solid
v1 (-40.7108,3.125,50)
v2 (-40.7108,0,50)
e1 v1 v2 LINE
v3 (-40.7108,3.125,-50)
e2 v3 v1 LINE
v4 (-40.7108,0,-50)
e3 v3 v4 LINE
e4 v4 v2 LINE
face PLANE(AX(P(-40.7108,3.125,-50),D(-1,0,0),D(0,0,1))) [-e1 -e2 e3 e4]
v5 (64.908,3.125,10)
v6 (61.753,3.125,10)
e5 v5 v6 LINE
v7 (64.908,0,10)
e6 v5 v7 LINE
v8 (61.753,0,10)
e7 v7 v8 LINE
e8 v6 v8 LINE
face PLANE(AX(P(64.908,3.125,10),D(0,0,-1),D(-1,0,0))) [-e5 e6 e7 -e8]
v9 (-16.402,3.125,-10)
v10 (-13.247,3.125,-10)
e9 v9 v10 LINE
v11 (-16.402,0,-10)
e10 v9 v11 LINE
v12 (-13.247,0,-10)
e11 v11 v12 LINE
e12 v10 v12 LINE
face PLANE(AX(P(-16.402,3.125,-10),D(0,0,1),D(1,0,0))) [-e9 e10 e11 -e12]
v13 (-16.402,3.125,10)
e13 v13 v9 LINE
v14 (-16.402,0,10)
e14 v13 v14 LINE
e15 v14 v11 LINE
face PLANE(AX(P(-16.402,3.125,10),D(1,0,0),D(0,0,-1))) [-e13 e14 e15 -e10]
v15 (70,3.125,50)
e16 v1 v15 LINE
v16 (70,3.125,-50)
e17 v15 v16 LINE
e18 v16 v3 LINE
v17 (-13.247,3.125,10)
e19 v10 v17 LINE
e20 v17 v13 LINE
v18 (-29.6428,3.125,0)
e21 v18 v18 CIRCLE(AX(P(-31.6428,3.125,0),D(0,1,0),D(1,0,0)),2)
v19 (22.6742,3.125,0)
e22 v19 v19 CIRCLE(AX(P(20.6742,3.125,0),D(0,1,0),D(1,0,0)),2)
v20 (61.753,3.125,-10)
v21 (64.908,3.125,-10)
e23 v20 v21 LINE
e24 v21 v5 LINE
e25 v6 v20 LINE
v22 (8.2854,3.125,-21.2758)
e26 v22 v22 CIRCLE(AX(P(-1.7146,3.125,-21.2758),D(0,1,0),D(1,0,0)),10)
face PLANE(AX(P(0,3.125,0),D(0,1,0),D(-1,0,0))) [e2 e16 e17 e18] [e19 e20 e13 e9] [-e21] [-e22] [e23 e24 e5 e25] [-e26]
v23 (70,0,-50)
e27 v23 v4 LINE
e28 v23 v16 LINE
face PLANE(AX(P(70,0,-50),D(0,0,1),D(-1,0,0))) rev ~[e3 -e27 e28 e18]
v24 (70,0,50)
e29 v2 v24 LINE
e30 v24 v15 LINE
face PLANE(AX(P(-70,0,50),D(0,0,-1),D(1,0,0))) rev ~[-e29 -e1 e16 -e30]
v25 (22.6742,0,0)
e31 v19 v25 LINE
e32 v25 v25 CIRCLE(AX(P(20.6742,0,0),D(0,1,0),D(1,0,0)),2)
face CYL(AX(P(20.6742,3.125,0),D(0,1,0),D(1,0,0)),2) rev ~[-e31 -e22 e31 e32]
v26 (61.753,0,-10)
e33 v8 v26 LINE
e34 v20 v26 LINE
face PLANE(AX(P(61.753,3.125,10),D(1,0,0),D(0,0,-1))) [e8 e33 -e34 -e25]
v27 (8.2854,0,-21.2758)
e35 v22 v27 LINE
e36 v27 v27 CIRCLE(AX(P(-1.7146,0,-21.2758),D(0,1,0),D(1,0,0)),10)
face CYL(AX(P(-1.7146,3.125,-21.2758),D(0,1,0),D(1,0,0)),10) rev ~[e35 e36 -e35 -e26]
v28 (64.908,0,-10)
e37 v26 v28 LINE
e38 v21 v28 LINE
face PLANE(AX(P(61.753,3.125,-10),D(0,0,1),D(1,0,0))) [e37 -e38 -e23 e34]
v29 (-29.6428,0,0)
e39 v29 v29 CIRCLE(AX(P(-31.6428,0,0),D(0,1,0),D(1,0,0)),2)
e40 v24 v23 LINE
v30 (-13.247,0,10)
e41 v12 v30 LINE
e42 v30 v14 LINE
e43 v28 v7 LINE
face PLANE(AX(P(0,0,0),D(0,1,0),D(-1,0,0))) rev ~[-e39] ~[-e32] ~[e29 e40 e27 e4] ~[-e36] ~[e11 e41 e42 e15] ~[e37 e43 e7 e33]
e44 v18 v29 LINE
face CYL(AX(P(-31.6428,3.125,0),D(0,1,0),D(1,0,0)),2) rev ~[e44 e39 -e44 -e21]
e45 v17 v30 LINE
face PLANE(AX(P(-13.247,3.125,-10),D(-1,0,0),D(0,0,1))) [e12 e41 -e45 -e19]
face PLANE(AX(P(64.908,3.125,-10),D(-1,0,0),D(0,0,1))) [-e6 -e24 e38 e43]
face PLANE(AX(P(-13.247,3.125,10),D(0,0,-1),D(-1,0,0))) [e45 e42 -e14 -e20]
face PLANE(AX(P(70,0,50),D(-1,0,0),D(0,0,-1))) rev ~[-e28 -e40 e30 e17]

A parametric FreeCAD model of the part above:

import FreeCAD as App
import Part
import Sketcher

V = App.Vector

doc = App.newDocument("Part")
body = doc.addObject("PartDesign::Body", "Body")

sketch1 = doc.addObject("Sketcher::SketchObject", "Sketch")
body.addObject(sketch1)
sketch1.AttachmentSupport = (doc.XZ_Plane, [""])
sketch1.MapMode = "FlatFace"
sketch1.addGeometry(Part.LineSegment(V(-70, -50, 0), V(-70, 50, 0)), False)
sketch1.addGeometry(Part.LineSegment(V(-70, 50, 0), V(70, 50, 0)), False)
sketch1.addGeometry(Part.LineSegment(V(70, 50, 0), V(70, -50, 0)), False)
sketch1.addGeometry(Part.LineSegment(V(70, -50, 0), V(-70, -50, 0)), False)
sketch1.addConstraint(Sketcher.Constraint("Coincident", 0, 2, 1, 1))
sketch1.addConstraint(Sketcher.Constraint("Coincident", 1, 2, 2, 1))
sketch1.addConstraint(Sketcher.Constraint("Coincident", 2, 2, 3, 1))
sketch1.addConstraint(Sketcher.Constraint("Coincident", 3, 2, 0, 1))
sketch1.addConstraint(Sketcher.Constraint("Vertical", 0))
sketch1.addConstraint(Sketcher.Constraint("Horizontal", 1))
sketch1.addConstraint(Sketcher.Constraint("Vertical", 2))
sketch1.addConstraint(Sketcher.Constraint("Horizontal", 3))
sketch1.addConstraint(Sketcher.Constraint("Symmetric", 0, 2, 2, 2, -1, 1))
sketch1.addConstraint(Sketcher.Constraint("DistanceX", 1, 1, 1, 2, 140.0))
sketch1.addConstraint(Sketcher.Constraint("DistanceY", 0, 1, 0, 2, 100.0))
pad1 = doc.addObject("PartDesign::Pad", "Pad")
body.addObject(pad1)
pad1.Profile = sketch1
pad1.Length = 3.125
pad1.Reversed = True

sketch2 = doc.addObject("Sketcher::SketchObject", "Sketch001")
body.addObject(sketch2)
sketch2.AttachmentSupport = (doc.XZ_Plane, [""])
sketch2.MapMode = "FlatFace"
sketch2.AttachmentOffset = App.Placement(V(0, 0, -3.125), App.Rotation())
sketch2.addGeometry(Part.Circle(V(-2, -21, 0), V(0, 0, 1), 10), False)
sketch2.addConstraint(Sketcher.Constraint("Diameter", 0, 20.0))
sketch2.addConstraint(Sketcher.Constraint("DistanceX", 0, 3, -1, 1, 1.7146))
sketch2.addConstraint(Sketcher.Constraint("DistanceY", 0, 3, -1, 1, 21.2758))
pocket1 = doc.addObject("PartDesign::Pocket", "Pocket")
body.addObject(pocket1)
pocket1.Profile = sketch2
pocket1.Length = 10
pocket1.Reversed = True

sketch3 = doc.addObject("Sketcher::SketchObject", "Sketch002")
body.addObject(sketch3)
sketch3.AttachmentSupport = (doc.XZ_Plane, [""])
sketch3.MapMode = "FlatFace"
sketch3.AttachmentOffset = App.Placement(V(0, 0, -3.125), App.Rotation())
sketch3.addGeometry(Part.Circle(V(-31.6, 0, 0), V(0, 0, 1), 2), False)
sketch3.addConstraint(Sketcher.Constraint("PointOnObject", 0, 3, -1))
sketch3.addConstraint(Sketcher.Constraint("Diameter", 0, 4.0))
sketch3.addConstraint(Sketcher.Constraint("DistanceX", 0, 3, -1, 1, 31.6428))
pocket2 = doc.addObject("PartDesign::Pocket", "Pocket001")
body.addObject(pocket2)
pocket2.Profile = sketch3
pocket2.Length = 5
pocket2.Reversed = True

sketch4 = doc.addObject("Sketcher::SketchObject", "Sketch003")
body.addObject(sketch4)
sketch4.AttachmentSupport = (doc.XZ_Plane, [""])
sketch4.MapMode = "FlatFace"
sketch4.AttachmentOffset = App.Placement(V(0, 0, -3.125), App.Rotation())
sketch4.addGeometry(Part.Circle(V(20.7, 0, 0), V(0, 0, 1), 2), False)
sketch4.addConstraint(Sketcher.Constraint("PointOnObject", 0, 3, -1))
sketch4.addConstraint(Sketcher.Constraint("Diameter", 0, 4.0))
sketch4.addConstraint(Sketcher.Constraint("DistanceX", -1, 1, 0, 3, 20.6742))
pocket3 = doc.addObject("PartDesign::Pocket", "Pocket002")
body.addObject(pocket3)
pocket3.Profile = sketch4
pocket3.Length = 5
pocket3.Reversed = True

sketch5 = doc.addObject("Sketcher::SketchObject", "Sketch004")
body.addObject(sketch5)
sketch5.AttachmentSupport = (doc.XZ_Plane, [""])
sketch5.MapMode = "FlatFace"
sketch5.AttachmentOffset = App.Placement(V(0, 0, -3.125), App.Rotation())
sketch5.addGeometry(Part.LineSegment(V(-13.2, -10, 0), V(-16.4, -10, 0)), False)
sketch5.addGeometry(Part.LineSegment(V(-16.4, -10, 0), V(-16.4, 10, 0)), False)
sketch5.addGeometry(Part.LineSegment(V(-16.4, 10, 0), V(-13.2, 10, 0)), False)
sketch5.addGeometry(Part.LineSegment(V(-13.2, 10, 0), V(-13.2, -10, 0)), False)
sketch5.addGeometry(Part.LineSegment(V(64.9, -10, 0), V(61.8, -10, 0)), False)
sketch5.addGeometry(Part.LineSegment(V(61.8, -10, 0), V(61.8, 10, 0)), False)
sketch5.addGeometry(Part.LineSegment(V(61.8, 10, 0), V(64.9, 10, 0)), False)
sketch5.addGeometry(Part.LineSegment(V(64.9, 10, 0), V(64.9, -10, 0)), False)
sketch5.addConstraint(Sketcher.Constraint("Coincident", 0, 2, 1, 1))
sketch5.addConstraint(Sketcher.Constraint("Coincident", 1, 2, 2, 1))
sketch5.addConstraint(Sketcher.Constraint("Coincident", 2, 2, 3, 1))
sketch5.addConstraint(Sketcher.Constraint("Coincident", 3, 2, 0, 1))
sketch5.addConstraint(Sketcher.Constraint("Coincident", 4, 2, 5, 1))
sketch5.addConstraint(Sketcher.Constraint("Coincident", 5, 2, 6, 1))
sketch5.addConstraint(Sketcher.Constraint("Coincident", 6, 2, 7, 1))
sketch5.addConstraint(Sketcher.Constraint("Coincident", 7, 2, 4, 1))
sketch5.addConstraint(Sketcher.Constraint("Horizontal", 0))
sketch5.addConstraint(Sketcher.Constraint("Vertical", 1))
sketch5.addConstraint(Sketcher.Constraint("Horizontal", 2))
sketch5.addConstraint(Sketcher.Constraint("Vertical", 3))
sketch5.addConstraint(Sketcher.Constraint("Horizontal", 4))
sketch5.addConstraint(Sketcher.Constraint("Vertical", 5))
sketch5.addConstraint(Sketcher.Constraint("Horizontal", 6))
sketch5.addConstraint(Sketcher.Constraint("Vertical", 7))
sketch5.addConstraint(Sketcher.Constraint("Horizontal", 3, 2, 4, 2))
sketch5.addConstraint(Sketcher.Constraint("Horizontal", 2, 2, 5, 2))
sketch5.addConstraint(Sketcher.Constraint("Equal", 2, 4))
sketch5.addConstraint(Sketcher.Constraint("DistanceY", 1, 1, 1, 2, 20.0))
sketch5.addConstraint(Sketcher.Constraint("DistanceX", 3, 2, 4, 2, 75.0))
sketch5.addConstraint(Sketcher.Constraint("DistanceX", 0, 2, 0, 1, 3.155))
sketch5.addConstraint(Sketcher.Constraint("DistanceY", 0, 2, -1, 1, 10.0))
sketch5.addConstraint(Sketcher.Constraint("DistanceX", 0, 2, -1, 1, 16.402))
pocket4 = doc.addObject("PartDesign::Pocket", "Pocket003")
body.addObject(pocket4)
pocket4.Profile = sketch5
pocket4.Length = 3.125
pocket4.Reversed = True

sketch6 = doc.addObject("Sketcher::SketchObject", "Sketch005")
body.addObject(sketch6)
sketch6.AttachmentSupport = (doc.XZ_Plane, [""])
sketch6.MapMode = "FlatFace"
sketch6.AttachmentOffset = App.Placement(V(0, 0, -3.125), App.Rotation())
sketch6.addGeometry(Part.LineSegment(V(-70, -50, 0), V(-70, 50, 0)), False)
sketch6.addGeometry(Part.LineSegment(V(-70, 50, 0), V(-41, 50, 0)), False)
sketch6.addGeometry(Part.LineSegment(V(-41, 50, 0), V(-41, -50, 0)), False)
sketch6.addGeometry(Part.LineSegment(V(-41, -50, 0), V(-70, -50, 0)), False)
sketch6.addConstraint(Sketcher.Constraint("Coincident", 0, 2, 1, 1))
sketch6.addConstraint(Sketcher.Constraint("Coincident", 1, 2, 2, 1))
sketch6.addConstraint(Sketcher.Constraint("Coincident", 2, 2, 3, 1))
sketch6.addConstraint(Sketcher.Constraint("Coincident", 3, 2, 0, 1))
sketch6.addConstraint(Sketcher.Constraint("Vertical", 0))
sketch6.addConstraint(Sketcher.Constraint("Horizontal", 1))
sketch6.addConstraint(Sketcher.Constraint("Vertical", 2))
sketch6.addConstraint(Sketcher.Constraint("Horizontal", 3))
sketch6.addConstraint(Sketcher.Constraint("DistanceY", 0, 1, 0, 2, 100.0))
sketch6.addConstraint(Sketcher.Constraint("DistanceX", 0, 2, -1, 1, 70.0))
sketch6.addConstraint(Sketcher.Constraint("DistanceY", -1, 1, 0, 2, 50.0))
sketch6.addConstraint(Sketcher.Constraint("DistanceX", 1, 1, 1, 2, 29.2892))
pocket5 = doc.addObject("PartDesign::Pocket", "Pocket004")
body.addObject(pocket5)
pocket5.Profile = sketch6
pocket5.Length = 3.125
pocket5.Reversed = True

doc.recompute()
